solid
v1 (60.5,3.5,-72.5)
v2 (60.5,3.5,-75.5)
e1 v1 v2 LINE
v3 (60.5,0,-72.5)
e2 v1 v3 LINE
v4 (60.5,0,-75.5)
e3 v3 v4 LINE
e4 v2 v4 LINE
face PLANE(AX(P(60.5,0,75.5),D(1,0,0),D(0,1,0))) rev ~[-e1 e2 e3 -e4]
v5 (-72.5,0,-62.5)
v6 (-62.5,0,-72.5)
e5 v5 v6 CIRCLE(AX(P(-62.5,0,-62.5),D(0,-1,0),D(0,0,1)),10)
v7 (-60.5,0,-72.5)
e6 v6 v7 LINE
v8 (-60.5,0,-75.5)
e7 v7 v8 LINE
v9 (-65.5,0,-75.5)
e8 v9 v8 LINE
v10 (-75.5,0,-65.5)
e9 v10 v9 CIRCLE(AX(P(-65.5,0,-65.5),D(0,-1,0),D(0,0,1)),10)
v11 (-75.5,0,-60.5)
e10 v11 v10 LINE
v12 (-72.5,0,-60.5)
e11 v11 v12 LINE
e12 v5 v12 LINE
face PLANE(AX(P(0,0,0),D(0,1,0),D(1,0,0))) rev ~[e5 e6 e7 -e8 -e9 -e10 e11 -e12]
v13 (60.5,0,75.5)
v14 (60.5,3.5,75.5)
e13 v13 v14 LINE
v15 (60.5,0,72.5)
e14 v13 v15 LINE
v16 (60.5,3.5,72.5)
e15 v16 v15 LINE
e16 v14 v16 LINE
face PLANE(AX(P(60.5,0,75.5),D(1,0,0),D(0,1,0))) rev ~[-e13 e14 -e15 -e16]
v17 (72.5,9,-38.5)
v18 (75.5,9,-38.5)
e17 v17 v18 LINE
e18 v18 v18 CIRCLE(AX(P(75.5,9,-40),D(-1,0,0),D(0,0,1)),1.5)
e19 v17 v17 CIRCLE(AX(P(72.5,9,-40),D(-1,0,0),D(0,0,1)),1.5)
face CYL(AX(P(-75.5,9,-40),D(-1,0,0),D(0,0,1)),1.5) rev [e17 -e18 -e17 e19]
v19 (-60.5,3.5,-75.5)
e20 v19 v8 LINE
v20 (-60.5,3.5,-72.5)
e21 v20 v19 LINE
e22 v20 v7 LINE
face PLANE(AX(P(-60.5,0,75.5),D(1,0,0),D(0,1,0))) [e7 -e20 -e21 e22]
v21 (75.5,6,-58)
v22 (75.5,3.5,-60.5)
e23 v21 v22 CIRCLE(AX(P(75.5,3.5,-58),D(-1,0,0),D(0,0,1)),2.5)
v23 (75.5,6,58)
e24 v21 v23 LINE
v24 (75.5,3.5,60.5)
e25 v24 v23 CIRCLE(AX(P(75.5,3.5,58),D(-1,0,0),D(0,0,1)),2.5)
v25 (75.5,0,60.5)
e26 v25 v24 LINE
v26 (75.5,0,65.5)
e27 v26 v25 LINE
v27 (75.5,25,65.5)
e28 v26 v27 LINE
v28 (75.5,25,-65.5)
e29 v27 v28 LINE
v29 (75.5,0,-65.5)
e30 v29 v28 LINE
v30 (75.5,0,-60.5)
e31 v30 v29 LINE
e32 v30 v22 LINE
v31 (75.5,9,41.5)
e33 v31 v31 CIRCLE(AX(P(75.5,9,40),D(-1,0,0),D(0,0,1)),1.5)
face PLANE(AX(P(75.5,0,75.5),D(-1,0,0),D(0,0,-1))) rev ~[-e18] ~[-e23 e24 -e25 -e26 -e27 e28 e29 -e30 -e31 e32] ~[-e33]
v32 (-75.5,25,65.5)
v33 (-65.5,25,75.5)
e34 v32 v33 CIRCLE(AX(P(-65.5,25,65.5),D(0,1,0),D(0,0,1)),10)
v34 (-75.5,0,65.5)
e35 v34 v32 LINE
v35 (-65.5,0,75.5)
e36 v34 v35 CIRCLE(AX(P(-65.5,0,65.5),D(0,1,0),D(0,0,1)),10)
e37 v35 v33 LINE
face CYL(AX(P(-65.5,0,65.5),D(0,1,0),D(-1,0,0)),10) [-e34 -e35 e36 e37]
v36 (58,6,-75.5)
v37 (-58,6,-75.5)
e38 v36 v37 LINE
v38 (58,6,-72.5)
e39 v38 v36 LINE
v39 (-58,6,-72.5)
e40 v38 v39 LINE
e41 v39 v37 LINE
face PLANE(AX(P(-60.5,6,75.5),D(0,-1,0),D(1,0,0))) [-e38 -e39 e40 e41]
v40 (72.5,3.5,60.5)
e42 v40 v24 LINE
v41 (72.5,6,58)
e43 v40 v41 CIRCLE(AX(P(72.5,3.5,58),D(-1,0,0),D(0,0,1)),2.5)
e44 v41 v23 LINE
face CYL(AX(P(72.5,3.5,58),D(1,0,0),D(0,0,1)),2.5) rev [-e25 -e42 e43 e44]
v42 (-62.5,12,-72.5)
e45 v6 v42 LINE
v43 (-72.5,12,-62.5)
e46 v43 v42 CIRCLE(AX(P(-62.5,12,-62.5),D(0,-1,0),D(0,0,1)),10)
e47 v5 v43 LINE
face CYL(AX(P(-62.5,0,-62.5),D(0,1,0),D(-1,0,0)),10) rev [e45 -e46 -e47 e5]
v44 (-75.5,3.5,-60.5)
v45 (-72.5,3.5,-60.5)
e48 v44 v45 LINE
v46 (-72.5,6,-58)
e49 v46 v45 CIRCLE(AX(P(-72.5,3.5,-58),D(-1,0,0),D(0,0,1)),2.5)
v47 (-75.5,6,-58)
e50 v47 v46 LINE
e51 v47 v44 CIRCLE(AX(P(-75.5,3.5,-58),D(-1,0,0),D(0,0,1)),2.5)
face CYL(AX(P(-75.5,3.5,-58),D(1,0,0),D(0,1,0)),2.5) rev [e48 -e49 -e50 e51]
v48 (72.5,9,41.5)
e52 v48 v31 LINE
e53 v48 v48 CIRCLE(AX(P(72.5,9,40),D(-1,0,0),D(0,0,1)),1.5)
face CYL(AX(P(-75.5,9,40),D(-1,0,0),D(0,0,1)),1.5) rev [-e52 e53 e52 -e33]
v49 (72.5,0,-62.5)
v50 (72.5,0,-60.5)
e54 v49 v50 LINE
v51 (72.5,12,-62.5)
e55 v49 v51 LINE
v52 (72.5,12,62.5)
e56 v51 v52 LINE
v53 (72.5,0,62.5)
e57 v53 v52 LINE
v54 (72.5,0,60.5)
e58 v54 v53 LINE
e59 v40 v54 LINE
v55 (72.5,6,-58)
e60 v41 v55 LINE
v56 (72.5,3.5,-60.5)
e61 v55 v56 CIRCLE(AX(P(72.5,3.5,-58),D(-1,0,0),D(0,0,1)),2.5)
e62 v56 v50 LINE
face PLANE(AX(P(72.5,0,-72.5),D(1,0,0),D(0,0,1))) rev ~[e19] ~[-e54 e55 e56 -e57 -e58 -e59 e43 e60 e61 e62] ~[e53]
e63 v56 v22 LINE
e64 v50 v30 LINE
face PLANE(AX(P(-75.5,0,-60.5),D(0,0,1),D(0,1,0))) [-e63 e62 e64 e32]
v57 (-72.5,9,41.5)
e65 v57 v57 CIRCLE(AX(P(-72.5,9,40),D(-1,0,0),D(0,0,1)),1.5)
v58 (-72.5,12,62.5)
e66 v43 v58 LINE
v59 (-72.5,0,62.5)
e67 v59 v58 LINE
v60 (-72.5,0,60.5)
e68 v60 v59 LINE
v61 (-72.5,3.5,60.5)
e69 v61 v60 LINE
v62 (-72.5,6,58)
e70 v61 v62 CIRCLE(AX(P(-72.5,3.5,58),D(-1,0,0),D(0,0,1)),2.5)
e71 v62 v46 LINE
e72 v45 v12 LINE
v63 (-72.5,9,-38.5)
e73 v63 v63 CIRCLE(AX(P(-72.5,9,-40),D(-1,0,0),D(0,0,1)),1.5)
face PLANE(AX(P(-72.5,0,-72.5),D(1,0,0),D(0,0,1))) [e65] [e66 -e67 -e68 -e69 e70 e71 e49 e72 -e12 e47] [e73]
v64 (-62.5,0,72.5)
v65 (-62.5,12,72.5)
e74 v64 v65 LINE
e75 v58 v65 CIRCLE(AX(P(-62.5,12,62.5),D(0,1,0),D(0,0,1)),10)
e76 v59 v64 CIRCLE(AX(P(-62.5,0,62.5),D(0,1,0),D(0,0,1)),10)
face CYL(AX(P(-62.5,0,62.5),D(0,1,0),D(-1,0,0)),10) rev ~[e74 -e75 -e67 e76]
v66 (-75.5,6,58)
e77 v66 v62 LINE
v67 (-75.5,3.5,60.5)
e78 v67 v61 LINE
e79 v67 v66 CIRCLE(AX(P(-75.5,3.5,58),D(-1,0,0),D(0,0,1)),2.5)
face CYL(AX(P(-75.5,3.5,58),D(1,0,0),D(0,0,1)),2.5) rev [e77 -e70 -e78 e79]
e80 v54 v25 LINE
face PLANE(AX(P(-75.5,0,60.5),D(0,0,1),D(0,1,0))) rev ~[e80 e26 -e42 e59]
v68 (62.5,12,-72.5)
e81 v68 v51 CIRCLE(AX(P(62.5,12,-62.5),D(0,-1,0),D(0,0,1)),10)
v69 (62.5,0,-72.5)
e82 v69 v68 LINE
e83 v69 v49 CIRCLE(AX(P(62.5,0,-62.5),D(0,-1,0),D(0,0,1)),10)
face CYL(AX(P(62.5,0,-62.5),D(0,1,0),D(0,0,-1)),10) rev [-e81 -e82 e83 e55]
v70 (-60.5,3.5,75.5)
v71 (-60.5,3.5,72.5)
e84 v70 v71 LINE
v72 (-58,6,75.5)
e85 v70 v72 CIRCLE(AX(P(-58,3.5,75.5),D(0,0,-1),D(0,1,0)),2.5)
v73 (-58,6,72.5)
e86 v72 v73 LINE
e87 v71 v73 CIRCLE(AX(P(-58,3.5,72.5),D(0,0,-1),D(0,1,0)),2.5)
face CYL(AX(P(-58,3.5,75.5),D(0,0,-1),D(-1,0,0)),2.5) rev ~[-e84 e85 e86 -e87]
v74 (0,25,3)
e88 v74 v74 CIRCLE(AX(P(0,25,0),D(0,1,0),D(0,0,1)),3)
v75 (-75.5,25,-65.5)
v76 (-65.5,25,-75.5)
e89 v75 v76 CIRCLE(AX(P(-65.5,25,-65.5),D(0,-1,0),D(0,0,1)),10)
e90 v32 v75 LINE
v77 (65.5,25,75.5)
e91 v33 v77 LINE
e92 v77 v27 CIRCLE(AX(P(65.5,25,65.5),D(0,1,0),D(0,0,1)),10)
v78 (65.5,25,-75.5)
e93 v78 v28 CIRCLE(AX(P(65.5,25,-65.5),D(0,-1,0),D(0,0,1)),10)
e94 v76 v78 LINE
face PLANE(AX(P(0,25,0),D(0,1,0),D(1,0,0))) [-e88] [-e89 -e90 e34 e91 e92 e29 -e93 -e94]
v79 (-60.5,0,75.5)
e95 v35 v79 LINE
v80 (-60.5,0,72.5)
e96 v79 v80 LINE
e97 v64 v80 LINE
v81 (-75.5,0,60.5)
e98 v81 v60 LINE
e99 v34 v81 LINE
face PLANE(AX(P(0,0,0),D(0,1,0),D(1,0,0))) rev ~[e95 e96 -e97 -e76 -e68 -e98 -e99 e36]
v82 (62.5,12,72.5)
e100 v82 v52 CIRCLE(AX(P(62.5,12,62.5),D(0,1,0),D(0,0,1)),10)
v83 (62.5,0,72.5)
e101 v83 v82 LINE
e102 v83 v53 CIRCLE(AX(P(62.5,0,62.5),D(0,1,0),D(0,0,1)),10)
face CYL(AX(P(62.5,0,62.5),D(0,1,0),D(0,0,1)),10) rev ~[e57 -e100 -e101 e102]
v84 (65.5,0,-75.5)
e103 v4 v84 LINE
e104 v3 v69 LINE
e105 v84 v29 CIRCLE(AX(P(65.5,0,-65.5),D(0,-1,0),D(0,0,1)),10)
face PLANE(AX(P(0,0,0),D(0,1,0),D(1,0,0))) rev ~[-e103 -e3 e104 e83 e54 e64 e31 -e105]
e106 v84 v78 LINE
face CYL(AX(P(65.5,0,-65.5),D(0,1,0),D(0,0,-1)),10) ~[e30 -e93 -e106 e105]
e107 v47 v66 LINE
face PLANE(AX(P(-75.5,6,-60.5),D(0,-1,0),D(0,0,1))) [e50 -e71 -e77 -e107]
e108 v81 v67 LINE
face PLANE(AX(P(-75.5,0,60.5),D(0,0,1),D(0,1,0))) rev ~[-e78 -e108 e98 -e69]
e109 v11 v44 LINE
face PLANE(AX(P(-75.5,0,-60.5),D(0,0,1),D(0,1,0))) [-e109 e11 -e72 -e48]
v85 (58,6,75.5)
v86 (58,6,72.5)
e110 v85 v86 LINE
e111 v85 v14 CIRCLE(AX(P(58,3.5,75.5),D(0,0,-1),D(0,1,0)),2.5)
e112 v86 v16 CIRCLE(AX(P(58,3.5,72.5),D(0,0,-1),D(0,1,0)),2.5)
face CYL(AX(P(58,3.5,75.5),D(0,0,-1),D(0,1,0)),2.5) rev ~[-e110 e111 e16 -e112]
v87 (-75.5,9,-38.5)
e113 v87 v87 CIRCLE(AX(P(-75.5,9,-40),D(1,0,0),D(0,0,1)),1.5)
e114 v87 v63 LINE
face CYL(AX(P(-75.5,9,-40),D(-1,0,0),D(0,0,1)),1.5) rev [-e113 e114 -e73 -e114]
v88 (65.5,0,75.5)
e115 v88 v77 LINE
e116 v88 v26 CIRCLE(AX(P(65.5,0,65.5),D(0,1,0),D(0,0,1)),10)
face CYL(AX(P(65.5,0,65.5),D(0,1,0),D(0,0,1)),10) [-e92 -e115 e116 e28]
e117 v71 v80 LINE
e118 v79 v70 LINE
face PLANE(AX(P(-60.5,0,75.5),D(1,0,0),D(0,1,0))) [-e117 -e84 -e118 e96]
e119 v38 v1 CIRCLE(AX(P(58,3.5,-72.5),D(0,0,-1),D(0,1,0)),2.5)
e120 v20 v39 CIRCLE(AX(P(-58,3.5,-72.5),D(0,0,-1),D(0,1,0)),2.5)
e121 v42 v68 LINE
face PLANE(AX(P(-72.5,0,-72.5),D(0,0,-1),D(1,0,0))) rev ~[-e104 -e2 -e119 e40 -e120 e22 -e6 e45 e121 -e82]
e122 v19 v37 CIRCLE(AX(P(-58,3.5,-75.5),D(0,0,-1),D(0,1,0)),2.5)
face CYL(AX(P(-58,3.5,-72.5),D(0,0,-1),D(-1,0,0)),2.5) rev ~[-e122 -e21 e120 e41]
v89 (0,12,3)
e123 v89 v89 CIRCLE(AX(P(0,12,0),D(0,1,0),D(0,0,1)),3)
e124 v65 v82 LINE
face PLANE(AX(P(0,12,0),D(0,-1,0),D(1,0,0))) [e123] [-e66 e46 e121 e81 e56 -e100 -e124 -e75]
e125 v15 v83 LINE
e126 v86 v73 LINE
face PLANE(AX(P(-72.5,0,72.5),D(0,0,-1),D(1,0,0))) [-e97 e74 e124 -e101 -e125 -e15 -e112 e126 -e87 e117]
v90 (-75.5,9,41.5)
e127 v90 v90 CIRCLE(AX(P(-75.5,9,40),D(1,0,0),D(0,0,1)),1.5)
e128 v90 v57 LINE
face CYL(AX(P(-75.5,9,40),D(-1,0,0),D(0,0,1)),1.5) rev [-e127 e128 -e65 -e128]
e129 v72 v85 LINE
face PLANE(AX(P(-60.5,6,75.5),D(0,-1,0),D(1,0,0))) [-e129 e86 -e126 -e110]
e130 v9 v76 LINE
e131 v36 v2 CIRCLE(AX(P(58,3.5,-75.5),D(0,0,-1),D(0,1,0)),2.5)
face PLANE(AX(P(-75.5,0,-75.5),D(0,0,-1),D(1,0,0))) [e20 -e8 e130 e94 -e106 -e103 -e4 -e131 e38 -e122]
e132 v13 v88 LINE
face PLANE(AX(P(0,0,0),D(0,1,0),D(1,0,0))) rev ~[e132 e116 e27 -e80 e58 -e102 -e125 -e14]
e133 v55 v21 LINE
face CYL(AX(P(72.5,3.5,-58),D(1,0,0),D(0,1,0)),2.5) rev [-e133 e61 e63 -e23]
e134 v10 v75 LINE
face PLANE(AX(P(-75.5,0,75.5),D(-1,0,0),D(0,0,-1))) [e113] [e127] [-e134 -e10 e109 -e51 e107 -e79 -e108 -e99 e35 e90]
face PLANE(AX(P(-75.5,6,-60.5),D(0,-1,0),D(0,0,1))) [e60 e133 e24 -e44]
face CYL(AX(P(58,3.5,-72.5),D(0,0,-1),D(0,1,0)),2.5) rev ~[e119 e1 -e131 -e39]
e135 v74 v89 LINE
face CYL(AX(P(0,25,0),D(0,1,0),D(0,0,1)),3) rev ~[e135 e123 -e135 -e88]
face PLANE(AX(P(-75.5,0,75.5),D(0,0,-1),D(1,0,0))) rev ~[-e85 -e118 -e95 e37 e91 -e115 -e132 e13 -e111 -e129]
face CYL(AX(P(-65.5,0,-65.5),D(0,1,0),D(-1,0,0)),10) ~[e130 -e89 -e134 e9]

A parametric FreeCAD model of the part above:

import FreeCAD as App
import Part
import Sketcher
from FreeCAD import Vector


def edges_at(feature, points):
    """Names of the edges that pass closest to the given points."""
    edges = feature.Shape.Edges
    near = lambda p: min(range(len(edges)), key=lambda i: edges[i].distToShape(Part.Vertex(*p))[0])
    return sorted({f"Edge{near(p) + 1}" for p in points})


def add_polygon(sketch, points):
    """Adds a closed chain of lines whose ends are joined by coincident constraints."""
    first, n = sketch.GeometryCount, len(points)
    for a, b in zip(points, points[1:] + points[:1]):
        sketch.addGeometry(Part.LineSegment(App.Vector(*a, 0), App.Vector(*b, 0)), False)
    for i in range(n):
        sketch.addConstraint(Sketcher.Constraint("Coincident", first + i, 2, first + (i + 1) % n, 1))

doc = App.newDocument("Part")
body = doc.addObject("PartDesign::Body", "Body")

# Sketch on XZ plane
sketch1 = doc.addObject("Sketcher::SketchObject", "Sketch")
body.addObject(sketch1)
sketch1.AttachmentSupport = (doc.XZ_Plane, [""])
sketch1.MapMode = "FlatFace"
add_polygon(sketch1, [(-76, -76), (-76, 76), (76, 76), (76, -76)])  # lines 0-3
sketch1.addConstraint(Sketcher.Constraint("Vertical", 0))
sketch1.addConstraint(Sketcher.Constraint("Horizontal", 1))
sketch1.addConstraint(Sketcher.Constraint("Vertical", 2))
sketch1.addConstraint(Sketcher.Constraint("Horizontal", 3))
sketch1.addConstraint(Sketcher.Constraint("Symmetric", 0, 2, 2, 2, -1, 1))
sketch1.addConstraint(Sketcher.Constraint("Equal", 3, 0))
sketch1.addConstraint(Sketcher.Constraint("DistanceX", 1, 1, 1, 2, 151.0))
pad1 = doc.addObject("PartDesign::Pad", "Pad")
body.addObject(pad1)
pad1.Profile = sketch1
pad1.Length = 25
pad1.Reversed = True

# Sketch on XZ plane
sketch2 = doc.addObject("Sketcher::SketchObject", "Sketch001")
body.addObject(sketch2)
sketch2.AttachmentSupport = (doc.XZ_Plane, [""])
sketch2.MapMode = "FlatFace"
add_polygon(sketch2, [(-72, 72), (-72, -72), (72, -72), (72, 72)])  # lines 0-3
sketch2.addConstraint(Sketcher.Constraint("Vertical", 0))
sketch2.addConstraint(Sketcher.Constraint("Horizontal", 1))
sketch2.addConstraint(Sketcher.Constraint("Vertical", 2))
sketch2.addConstraint(Sketcher.Constraint("Horizontal", 3))
sketch2.addConstraint(Sketcher.Constraint("Symmetric", 0, 2, 2, 2, -1, 1))
sketch2.addConstraint(Sketcher.Constraint("Equal", 3, 0))
sketch2.addConstraint(Sketcher.Constraint("DistanceX", 1, 1, 1, 2, 145.0))
pocket1 = doc.addObject("PartDesign::Pocket", "Pocket")
body.addObject(pocket1)
pocket1.Profile = sketch2
pocket1.Length = 12

# Sketch on XY plane
sketch3 = doc.addObject("Sketcher::SketchObject", "Sketch002")
body.addObject(sketch3)
sketch3.AttachmentSupport = (doc.XY_Plane, [""])
sketch3.MapMode = "FlatFace"
sketch3.AttachmentOffset = App.Placement(Vector(0, 0, 75.5), App.Rotation())
add_polygon(sketch3, [(-60, 6), (-60, 0), (60, 0), (60, 6)])  # lines 0-3
sketch3.addConstraint(Sketcher.Constraint("Vertical", 0))
sketch3.addConstraint(Sketcher.Constraint("Horizontal", 1))
sketch3.addConstraint(Sketcher.Constraint("Vertical", 2))
sketch3.addConstraint(Sketcher.Constraint("Horizontal", 3))
sketch3.addConstraint(Sketcher.Constraint("Symmetric", 0, 2, 1, 2, -1, 1))
sketch3.addConstraint(Sketcher.Constraint("DistanceX", 1, 1, 1, 2, 121.0))
sketch3.addConstraint(Sketcher.Constraint("DistanceY", 0, 2, 0, 1, 6.0))
pocket2 = doc.addObject("PartDesign::Pocket", "Pocket001")
body.addObject(pocket2)
pocket2.Profile = sketch3
pocket2.Type = "ThroughAll"

# Sketch on YZ plane
sketch4 = doc.addObject("Sketcher::SketchObject", "Sketch003")
body.addObject(sketch4)
sketch4.AttachmentSupport = (doc.YZ_Plane, [""])
sketch4.MapMode = "FlatFace"
sketch4.AttachmentOffset = App.Placement(Vector(0, 0, -75.5), App.Rotation())
add_polygon(sketch4, [(6, -60), (0, -60), (0, 60), (6, 60)])  # lines 0-3
sketch4.addConstraint(Sketcher.Constraint("Horizontal", 0))
sketch4.addConstraint(Sketcher.Constraint("Vertical", 1))
sketch4.addConstraint(Sketcher.Constraint("Horizontal", 2))
sketch4.addConstraint(Sketcher.Constraint("Vertical", 3))
sketch4.addConstraint(Sketcher.Constraint("Symmetric", 0, 2, 1, 2, -1, 1))
sketch4.addConstraint(Sketcher.Constraint("DistanceX", 0, 2, 0, 1, 6.0))
sketch4.addConstraint(Sketcher.Constraint("DistanceY", 1, 1, 1, 2, 121.0))
pocket3 = doc.addObject("PartDesign::Pocket", "Pocket002")
body.addObject(pocket3)
pocket3.Profile = sketch4
pocket3.Type = "ThroughAll"
pocket3.Reversed = True
doc.recompute()

fillet = doc.addObject("PartDesign::Fillet", "Fillet")
body.addObject(fillet)
fillet.Base = (pocket3, edges_at(pocket3, [
    (72.5, 6, 72.5),
    (72.5, 6, -72.5),
    (-72.5, 6, -72.5),
    (-72.5, 6, 72.5),
    (75.5, 12.5, 75.5),
    (-75.5, 12.5, 75.5),
    (-75.5, 12.5, -75.5),
    (75.5, 12.5, -75.5),
]))
fillet.Radius = 10

# Sketch on XZ plane
sketch5 = doc.addObject("Sketcher::SketchObject", "Sketch004")
body.addObject(sketch5)
sketch5.AttachmentSupport = (doc.XZ_Plane, [""])
sketch5.MapMode = "FlatFace"
sketch5.AttachmentOffset = App.Placement(Vector(0, 0, -25), App.Rotation())
sketch5.addGeometry(Part.Circle(Vector(0, 0, 0), Vector(0, 0, 1), 3), False)
sketch5.addConstraint(Sketcher.Constraint("Coincident", 0, 3, -1, 1))
sketch5.addConstraint(Sketcher.Constraint("Diameter", 0, 6.0))
pocket4 = doc.addObject("PartDesign::Pocket", "Pocket003")
body.addObject(pocket4)
pocket4.Profile = sketch5
pocket4.Type = "ThroughAll"
pocket4.Reversed = True
doc.recompute()

fillet2 = doc.addObject("PartDesign::Fillet", "Fillet001")
body.addObject(fillet2)
fillet2.Base = (pocket4, edges_at(pocket4, [
    (-60.5, 6, -74),
    (-60.5, 6, 74),
    (60.5, 6, -74),
    (60.5, 6, 74),
    (74, 6, -60.5),
    (-74, 6, -60.5),
    (74, 6, 60.5),
    (-74, 6, 60.5),
]))
fillet2.Radius = 2.5

# Sketch on YZ plane
sketch6 = doc.addObject("Sketcher::SketchObject", "Sketch005")
body.addObject(sketch6)
sketch6.AttachmentSupport = (doc.YZ_Plane, [""])
sketch6.MapMode = "FlatFace"
sketch6.AttachmentOffset = App.Placement(Vector(0, 0, -75.5), App.Rotation())
sketch6.addGeometry(Part.Circle(Vector(9, 40, 0), Vector(0, 0, 1), 1.5), False)
sketch6.addGeometry(Part.Circle(Vector(9, -40, 0), Vector(0, 0, 1), 1.5), False)
sketch6.addConstraint(Sketcher.Constraint("Equal", 0, 1))
sketch6.addConstraint(Sketcher.Constraint("Symmetric", 0, 3, 1, 3, -1))
sketch6.addConstraint(Sketcher.Constraint("Diameter", 0, 3.0))
sketch6.addConstraint(Sketcher.Constraint("DistanceX", -1, 1, 0, 3, 9.0))
sketch6.addConstraint(Sketcher.Constraint("DistanceY", -1, 1, 0, 3, 40.0))
pocket5 = doc.addObject("PartDesign::Pocket", "Pocket004")
body.addObject(pocket5)
pocket5.Profile = sketch6
pocket5.Type = "ThroughAll"
pocket5.Reversed = True

doc.recompute()
